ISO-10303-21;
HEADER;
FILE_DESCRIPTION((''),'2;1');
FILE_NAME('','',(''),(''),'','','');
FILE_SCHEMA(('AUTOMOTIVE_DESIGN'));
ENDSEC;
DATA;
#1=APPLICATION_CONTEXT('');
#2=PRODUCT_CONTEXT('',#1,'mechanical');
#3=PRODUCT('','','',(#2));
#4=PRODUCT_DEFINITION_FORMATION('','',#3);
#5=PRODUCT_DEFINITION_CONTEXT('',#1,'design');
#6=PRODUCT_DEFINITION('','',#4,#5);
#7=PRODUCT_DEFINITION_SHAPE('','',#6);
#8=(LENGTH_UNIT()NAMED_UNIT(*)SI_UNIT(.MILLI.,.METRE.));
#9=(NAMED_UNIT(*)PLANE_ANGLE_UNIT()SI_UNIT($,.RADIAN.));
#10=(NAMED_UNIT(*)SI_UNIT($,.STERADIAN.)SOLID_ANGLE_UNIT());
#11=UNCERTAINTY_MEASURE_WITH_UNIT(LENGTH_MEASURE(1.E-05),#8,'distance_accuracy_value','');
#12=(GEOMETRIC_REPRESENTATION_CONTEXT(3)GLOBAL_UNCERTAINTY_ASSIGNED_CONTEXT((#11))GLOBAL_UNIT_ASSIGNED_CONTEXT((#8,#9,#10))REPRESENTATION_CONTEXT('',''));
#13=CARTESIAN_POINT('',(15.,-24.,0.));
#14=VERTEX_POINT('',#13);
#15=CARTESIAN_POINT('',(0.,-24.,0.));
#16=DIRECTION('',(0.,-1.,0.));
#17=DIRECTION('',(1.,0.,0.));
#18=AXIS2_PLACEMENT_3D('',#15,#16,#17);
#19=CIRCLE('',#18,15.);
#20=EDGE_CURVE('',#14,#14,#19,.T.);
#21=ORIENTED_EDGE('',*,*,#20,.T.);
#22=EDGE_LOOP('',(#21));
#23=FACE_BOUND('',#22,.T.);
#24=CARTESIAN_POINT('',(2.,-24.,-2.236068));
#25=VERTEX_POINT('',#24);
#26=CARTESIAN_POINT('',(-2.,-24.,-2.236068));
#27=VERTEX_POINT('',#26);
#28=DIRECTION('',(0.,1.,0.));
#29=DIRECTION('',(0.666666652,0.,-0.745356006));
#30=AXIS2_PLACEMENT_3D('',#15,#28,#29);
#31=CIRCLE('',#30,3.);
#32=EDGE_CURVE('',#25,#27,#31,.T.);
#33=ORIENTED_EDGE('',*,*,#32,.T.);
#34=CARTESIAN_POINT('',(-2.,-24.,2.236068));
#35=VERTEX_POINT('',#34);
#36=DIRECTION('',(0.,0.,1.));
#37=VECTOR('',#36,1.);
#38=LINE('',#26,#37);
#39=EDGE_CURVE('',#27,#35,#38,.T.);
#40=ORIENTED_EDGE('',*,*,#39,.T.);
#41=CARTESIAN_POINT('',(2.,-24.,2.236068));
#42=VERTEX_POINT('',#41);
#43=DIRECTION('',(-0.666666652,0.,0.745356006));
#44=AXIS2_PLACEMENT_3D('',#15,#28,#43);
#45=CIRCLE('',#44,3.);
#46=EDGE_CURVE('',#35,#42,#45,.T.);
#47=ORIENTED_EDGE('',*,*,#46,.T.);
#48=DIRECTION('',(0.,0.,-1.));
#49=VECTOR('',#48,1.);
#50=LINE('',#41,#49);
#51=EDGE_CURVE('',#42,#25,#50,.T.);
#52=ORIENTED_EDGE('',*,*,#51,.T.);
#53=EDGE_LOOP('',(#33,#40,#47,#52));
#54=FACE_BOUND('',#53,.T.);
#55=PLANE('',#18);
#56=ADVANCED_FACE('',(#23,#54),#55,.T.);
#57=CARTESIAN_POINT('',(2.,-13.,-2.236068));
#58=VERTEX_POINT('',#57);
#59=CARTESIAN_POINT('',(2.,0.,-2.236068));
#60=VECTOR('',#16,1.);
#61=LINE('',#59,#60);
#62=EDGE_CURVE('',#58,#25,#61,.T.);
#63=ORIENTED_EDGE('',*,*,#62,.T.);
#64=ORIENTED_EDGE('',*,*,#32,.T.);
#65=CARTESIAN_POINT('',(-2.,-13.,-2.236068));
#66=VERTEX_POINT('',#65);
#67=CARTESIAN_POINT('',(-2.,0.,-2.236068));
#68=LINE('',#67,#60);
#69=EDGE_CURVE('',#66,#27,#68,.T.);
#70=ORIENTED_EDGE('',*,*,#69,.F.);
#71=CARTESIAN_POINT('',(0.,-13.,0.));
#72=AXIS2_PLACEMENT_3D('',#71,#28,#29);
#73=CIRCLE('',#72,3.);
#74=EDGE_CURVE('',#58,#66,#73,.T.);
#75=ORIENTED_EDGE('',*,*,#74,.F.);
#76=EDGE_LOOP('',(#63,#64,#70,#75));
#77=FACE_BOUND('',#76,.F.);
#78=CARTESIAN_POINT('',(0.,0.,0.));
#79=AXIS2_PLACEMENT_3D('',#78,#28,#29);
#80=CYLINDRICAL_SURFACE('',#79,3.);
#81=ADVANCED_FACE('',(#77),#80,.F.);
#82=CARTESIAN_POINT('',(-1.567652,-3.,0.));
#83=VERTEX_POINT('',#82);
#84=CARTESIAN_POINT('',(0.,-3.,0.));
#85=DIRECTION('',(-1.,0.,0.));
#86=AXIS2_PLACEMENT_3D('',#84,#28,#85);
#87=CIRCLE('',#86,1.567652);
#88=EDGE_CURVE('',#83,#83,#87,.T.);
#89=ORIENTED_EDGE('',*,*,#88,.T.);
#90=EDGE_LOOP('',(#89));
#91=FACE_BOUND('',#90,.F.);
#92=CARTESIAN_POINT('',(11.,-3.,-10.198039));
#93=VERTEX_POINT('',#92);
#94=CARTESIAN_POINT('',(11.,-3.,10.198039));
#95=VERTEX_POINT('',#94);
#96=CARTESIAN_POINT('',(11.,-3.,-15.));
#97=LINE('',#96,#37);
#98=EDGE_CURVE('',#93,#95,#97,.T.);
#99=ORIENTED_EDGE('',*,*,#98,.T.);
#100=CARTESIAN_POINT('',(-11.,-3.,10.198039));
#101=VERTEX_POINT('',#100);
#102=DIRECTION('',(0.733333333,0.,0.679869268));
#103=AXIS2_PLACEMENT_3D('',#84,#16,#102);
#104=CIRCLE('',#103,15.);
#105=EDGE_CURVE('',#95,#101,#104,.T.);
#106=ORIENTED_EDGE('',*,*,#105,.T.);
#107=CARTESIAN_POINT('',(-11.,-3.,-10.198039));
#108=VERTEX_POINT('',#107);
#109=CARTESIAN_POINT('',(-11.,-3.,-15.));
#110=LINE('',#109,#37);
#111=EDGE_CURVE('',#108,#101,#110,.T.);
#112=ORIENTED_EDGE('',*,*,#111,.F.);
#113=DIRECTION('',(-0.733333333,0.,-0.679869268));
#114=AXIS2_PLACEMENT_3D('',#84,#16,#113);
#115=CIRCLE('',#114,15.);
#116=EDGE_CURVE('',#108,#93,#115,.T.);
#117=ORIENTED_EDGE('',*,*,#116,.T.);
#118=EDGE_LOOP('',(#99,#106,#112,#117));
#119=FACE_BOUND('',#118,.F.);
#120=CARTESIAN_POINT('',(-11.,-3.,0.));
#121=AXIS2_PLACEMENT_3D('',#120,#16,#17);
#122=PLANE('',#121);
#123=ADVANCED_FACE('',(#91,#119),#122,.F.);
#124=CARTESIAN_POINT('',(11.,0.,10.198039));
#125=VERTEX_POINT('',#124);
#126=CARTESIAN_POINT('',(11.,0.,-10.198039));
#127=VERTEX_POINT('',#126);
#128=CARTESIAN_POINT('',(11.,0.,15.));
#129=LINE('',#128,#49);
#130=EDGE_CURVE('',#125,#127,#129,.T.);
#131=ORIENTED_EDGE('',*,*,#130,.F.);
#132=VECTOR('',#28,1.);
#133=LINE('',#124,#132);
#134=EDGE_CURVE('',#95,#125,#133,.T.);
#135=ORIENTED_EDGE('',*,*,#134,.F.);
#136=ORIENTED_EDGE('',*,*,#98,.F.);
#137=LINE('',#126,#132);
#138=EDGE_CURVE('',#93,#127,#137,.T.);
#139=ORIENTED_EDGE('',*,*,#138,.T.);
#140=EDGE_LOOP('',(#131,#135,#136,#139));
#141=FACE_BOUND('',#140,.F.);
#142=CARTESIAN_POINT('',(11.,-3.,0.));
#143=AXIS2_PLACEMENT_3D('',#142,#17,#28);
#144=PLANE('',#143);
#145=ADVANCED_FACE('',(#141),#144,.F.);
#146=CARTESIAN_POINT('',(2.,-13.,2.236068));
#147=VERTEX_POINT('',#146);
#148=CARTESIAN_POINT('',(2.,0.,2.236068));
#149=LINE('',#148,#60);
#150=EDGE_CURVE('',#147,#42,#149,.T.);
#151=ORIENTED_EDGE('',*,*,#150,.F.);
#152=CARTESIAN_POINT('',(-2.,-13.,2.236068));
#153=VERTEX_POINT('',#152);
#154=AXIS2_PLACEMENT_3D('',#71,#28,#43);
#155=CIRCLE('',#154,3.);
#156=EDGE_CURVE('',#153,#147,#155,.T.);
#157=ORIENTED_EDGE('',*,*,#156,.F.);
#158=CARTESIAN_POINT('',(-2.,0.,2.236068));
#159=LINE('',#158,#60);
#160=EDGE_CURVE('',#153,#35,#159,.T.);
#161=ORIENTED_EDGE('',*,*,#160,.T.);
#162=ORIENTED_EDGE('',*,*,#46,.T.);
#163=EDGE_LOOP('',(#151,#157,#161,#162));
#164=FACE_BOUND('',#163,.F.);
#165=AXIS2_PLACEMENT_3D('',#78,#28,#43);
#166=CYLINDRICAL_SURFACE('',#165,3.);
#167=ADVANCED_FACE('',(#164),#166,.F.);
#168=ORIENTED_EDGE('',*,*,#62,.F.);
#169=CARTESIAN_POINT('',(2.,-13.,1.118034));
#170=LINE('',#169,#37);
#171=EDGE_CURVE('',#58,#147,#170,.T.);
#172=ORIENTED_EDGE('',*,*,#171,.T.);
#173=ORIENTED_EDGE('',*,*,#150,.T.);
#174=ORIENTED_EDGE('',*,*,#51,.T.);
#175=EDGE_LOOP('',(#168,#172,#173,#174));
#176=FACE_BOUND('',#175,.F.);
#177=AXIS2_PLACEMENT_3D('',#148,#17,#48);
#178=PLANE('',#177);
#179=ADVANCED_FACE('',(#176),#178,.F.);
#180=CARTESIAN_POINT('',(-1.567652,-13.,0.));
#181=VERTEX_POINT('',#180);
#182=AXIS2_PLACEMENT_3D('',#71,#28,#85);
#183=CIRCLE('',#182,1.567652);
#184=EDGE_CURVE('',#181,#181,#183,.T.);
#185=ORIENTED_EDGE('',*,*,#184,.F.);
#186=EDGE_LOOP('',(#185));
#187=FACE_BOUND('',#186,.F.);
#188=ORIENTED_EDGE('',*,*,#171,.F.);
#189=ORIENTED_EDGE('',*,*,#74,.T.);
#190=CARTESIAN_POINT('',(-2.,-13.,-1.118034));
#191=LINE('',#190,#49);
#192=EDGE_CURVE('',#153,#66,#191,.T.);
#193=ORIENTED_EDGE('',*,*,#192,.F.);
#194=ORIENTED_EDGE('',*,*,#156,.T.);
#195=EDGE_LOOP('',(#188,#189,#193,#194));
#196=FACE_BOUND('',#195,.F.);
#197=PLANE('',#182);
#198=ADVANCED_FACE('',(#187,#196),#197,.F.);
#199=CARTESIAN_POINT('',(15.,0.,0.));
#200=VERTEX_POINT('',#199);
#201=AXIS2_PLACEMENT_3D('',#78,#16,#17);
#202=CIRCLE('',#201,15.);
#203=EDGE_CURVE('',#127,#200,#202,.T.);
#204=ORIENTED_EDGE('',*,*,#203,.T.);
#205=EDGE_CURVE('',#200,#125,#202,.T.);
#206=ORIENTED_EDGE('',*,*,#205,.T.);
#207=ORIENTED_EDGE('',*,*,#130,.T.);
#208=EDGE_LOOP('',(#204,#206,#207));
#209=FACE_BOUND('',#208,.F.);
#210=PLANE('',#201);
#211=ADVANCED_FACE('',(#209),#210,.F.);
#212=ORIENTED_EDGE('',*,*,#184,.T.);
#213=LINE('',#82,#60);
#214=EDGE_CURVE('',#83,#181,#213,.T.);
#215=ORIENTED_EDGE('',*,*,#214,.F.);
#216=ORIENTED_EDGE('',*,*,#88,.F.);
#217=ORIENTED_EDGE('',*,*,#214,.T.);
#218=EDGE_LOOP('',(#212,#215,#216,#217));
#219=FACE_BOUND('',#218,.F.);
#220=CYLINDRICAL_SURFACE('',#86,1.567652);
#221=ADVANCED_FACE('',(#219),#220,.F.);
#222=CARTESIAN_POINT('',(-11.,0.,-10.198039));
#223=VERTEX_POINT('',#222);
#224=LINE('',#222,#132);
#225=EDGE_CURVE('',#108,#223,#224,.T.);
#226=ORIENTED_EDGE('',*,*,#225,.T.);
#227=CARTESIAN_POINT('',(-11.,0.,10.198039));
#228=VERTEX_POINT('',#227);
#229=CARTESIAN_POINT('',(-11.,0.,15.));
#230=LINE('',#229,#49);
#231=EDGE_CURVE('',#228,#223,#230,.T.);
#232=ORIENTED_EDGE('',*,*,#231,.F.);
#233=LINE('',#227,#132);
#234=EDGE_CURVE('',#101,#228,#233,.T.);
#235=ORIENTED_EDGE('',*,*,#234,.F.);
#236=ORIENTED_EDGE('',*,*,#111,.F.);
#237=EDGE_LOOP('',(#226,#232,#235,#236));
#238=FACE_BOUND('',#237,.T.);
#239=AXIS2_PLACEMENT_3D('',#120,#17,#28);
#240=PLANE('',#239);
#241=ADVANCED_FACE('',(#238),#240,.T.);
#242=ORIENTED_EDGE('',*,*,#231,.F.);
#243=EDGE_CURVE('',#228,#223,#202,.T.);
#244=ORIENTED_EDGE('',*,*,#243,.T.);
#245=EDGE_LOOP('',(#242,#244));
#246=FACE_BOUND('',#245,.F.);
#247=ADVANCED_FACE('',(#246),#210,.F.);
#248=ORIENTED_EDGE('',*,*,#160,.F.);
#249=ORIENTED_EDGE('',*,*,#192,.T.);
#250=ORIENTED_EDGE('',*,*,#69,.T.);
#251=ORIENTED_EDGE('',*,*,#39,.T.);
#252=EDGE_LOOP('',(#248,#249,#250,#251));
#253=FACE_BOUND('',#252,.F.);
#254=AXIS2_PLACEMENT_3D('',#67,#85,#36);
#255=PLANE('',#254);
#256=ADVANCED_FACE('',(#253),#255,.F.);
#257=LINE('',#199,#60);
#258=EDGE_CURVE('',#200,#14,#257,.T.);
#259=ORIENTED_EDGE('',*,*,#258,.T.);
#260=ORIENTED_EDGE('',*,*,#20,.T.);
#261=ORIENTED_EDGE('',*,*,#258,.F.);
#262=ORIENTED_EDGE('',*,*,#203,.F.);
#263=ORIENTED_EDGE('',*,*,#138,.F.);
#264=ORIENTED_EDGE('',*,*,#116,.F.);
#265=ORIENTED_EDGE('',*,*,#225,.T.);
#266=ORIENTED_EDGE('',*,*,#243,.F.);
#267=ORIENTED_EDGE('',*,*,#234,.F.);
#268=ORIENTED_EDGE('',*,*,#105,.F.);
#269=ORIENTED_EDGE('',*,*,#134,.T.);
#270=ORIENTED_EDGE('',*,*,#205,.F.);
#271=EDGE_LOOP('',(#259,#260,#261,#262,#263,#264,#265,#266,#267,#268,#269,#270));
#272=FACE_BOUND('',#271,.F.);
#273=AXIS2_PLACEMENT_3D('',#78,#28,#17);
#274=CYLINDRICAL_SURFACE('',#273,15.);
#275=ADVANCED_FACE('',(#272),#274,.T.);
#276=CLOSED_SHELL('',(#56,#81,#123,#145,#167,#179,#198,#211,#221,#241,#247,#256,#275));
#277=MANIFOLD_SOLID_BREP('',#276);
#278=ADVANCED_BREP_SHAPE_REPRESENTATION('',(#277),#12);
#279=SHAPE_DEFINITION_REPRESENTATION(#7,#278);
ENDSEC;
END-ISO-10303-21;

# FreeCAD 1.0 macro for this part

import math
import FreeCAD as App
import Part
import Sketcher

V = App.Vector
Q = App.Units.Quantity


def add_polygon(sketch, points):
    """Adds a closed chain of lines whose ends are joined by coincident constraints."""
    first, n = sketch.GeometryCount, len(points)
    for a, b in zip(points, points[1:] + points[:1]):
        sketch.addGeometry(Part.LineSegment(App.Vector(*a, 0), App.Vector(*b, 0)), False)
    for i in range(n):
        sketch.addConstraint(Sketcher.Constraint("Coincident", first + i, 2, first + (i + 1) % n, 1))

doc = App.newDocument("Part")
params = doc.addObject("Spreadsheet::Sheet", "Params")
for row, (alias, value) in enumerate([
    ("sketch1_diameter", "30 mm"),
    ("sketch1_radius", "3 mm"),
    ("pad1_length", "24 mm"),
    ("sketch2_width", "22 mm"),
    ("sketch2_height", "3 mm"),
    ("pocket1_length", "30 mm"),
    ("pad2_length", "10 mm"),
], start=1):
    params.set(f"A{row}", alias)
    params.set(f"B{row}", "=" + value)
    params.setAlias(f"B{row}", alias)

body = doc.addObject("PartDesign::Body", "Body")

# Sketch on XZ plane
sketch1 = body.newObject("Sketcher::SketchObject", "Sketch")
sketch1.AttachmentSupport = (doc.getObject("XZ_Plane"), [""])
sketch1.MapMode = "FlatFace"
sketch1.addGeometry(Part.Circle(V(0, 0, 0), V(0, 0, 1), 15), False)
sketch1.addGeometry(Part.LineSegment(V(2, 2.236068, 0), V(2, -2.236068, 0)), False)
sketch1.addGeometry(Part.ArcOfCircle(Part.Circle(V(0, 0, 0), V(0, 0, 1), 3), math.radians(-131.810314), math.radians(-48.189686)), False)
sketch1.addGeometry(Part.LineSegment(V(-2, -2.236068, 0), V(-2, 2.236068, 0)), False)
sketch1.addGeometry(Part.ArcOfCircle(Part.Circle(V(0, 0, 0), V(0, 0, 1), 3), math.radians(48.189686), math.radians(131.810314)), False)
sketch1.addConstraint(Sketcher.Constraint("Coincident", 1, 2, 2, 2))
sketch1.addConstraint(Sketcher.Constraint("Coincident", 2, 1, 3, 1))
sketch1.addConstraint(Sketcher.Constraint("Coincident", 3, 2, 4, 2))
sketch1.addConstraint(Sketcher.Constraint("Coincident", 4, 1, 1, 1))
sketch1.addConstraint(Sketcher.Constraint("Vertical", 1))
sketch1.addConstraint(Sketcher.Constraint("Vertical", 3))
sketch1.addConstraint(Sketcher.Constraint("Coincident", 0, 3, -1, 1))
sketch1.addConstraint(Sketcher.Constraint("Coincident", 2, 3, -1, 1))
sketch1.addConstraint(Sketcher.Constraint("Coincident", 4, 3, -1, 1))
sketch1.addConstraint(Sketcher.Constraint("Equal", 2, 4))
sketch1.addConstraint(Sketcher.Constraint("Horizontal", 1, 2, 2, 1))
sketch1.addConstraint(Sketcher.Constraint("Diameter", 0, Q("30 mm")))
sketch1.addConstraint(Sketcher.Constraint("Radius", 2, Q("3 mm")))
sketch1.addConstraint(Sketcher.Constraint("DistanceX", -1, 1, 1, 2, Q("2 mm")))
sketch1.setExpression("Constraints[11]", "Params.sketch1_diameter")
sketch1.setExpression("Constraints[12]", "Params.sketch1_radius")
pad1 = body.newObject("PartDesign::Pad", "Pad")
pad1.Profile = sketch1
pad1.setExpression("Length", "Params.pad1_length")

# Sketch on XY plane
sketch2 = body.newObject("Sketcher::SketchObject", "Sketch001")
sketch2.AttachmentSupport = (doc.getObject("XY_Plane"), [""])
sketch2.MapMode = "FlatFace"
add_polygon(sketch2, [(-11, 0), (-11, -3), (11, -3), (11, 0)])  # lines 0-3
sketch2.addConstraint(Sketcher.Constraint("Vertical", 0))
sketch2.addConstraint(Sketcher.Constraint("Horizontal", 1))
sketch2.addConstraint(Sketcher.Constraint("Vertical", 2))
sketch2.addConstraint(Sketcher.Constraint("Horizontal", 3))
sketch2.addConstraint(Sketcher.Constraint("Symmetric", 2, 2, 3, 2, -1, 1))
sketch2.addConstraint(Sketcher.Constraint("DistanceX", 1, 1, 1, 2, Q("22 mm")))
sketch2.addConstraint(Sketcher.Constraint("DistanceY", 0, 2, 0, 1, Q("3 mm")))
sketch2.setExpression("Constraints[9]", "Params.sketch2_width")
sketch2.setExpression("Constraints[10]", "Params.sketch2_height")
pocket1 = body.newObject("PartDesign::Pocket", "Pocket")
pocket1.Profile = sketch2
pocket1.setExpression("Length", "Params.pocket1_length")
pocket1.Midplane = True

# Sketch on XZ plane
sketch3 = body.newObject("Sketcher::SketchObject", "Sketch002")
sketch3.AttachmentSupport = (doc.getObject("XZ_Plane"), [""])
sketch3.MapMode = "FlatFace"
sketch3.AttachmentOffset = App.Placement(V(0, 0, 3), App.Rotation())
sketch3.addGeometry(Part.Circle(V(0, 0, 0), V(0, 0, 1), 3.056512), False)
sketch3.addGeometry(Part.Circle(V(0, 0, 0), V(0, 0, 1), 1.567652), False)
sketch3.addConstraint(Sketcher.Constraint("Coincident", 0, 3, -1, 1))
sketch3.addConstraint(Sketcher.Constraint("Coincident", 1, 3, -1, 1))
sketch3.addConstraint(Sketcher.Constraint("Diameter", 0, Q("6.113024 mm")))
sketch3.addConstraint(Sketcher.Constraint("Diameter", 1, Q("3.135304 mm")))
pad2 = body.newObject("PartDesign::Pad", "Pad001")
pad2.Profile = sketch3
pad2.setExpression("Length", "Params.pad2_length")

doc.recompute()
